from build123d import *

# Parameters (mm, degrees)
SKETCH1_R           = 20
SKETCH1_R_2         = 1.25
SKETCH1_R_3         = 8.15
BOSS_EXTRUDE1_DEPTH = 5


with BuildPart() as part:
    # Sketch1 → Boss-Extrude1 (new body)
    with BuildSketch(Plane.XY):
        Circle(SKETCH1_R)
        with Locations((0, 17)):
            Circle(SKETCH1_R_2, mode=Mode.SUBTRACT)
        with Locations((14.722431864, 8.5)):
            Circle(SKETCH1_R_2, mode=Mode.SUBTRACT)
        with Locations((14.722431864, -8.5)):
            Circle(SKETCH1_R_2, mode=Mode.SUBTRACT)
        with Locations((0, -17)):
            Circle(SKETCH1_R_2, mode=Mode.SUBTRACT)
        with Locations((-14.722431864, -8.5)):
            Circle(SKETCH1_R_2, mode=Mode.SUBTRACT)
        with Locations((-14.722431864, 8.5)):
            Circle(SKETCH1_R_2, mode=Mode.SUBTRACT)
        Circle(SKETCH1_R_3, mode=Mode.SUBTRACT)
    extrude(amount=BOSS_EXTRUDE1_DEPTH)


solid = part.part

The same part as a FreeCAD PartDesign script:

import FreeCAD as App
import Part
import Sketcher
Q = App.Units.Quantity

doc = App.newDocument("Part")
body = doc.addObject("PartDesign::Body", "Body")

sketch1 = body.newObject("Sketcher::SketchObject", "Sketch")
sketch1.AttachmentSupport = (doc.getObject("XY_Plane"), [""])
sketch1.MapMode = "FlatFace"
sketch1.addGeometry(Part.Circle(App.Vector(0, 0, 0), App.Vector(0, 0, 1), 20), False)
sketch1.addGeometry(Part.Circle(App.Vector(0, -17, 0), App.Vector(0, 0, 1), 1.2), False)
sketch1.addGeometry(Part.Circle(App.Vector(-14.7, -8.5, 0), App.Vector(0, 0, 1), 1.2), False)
sketch1.addGeometry(Part.Circle(App.Vector(14.7, -8.5, 0), App.Vector(0, 0, 1), 1.2), False)
sketch1.addGeometry(Part.Circle(App.Vector(-14.7, 8.5, 0), App.Vector(0, 0, 1), 1.2), False)
sketch1.addGeometry(Part.Circle(App.Vector(0, 0, 0), App.Vector(0, 0, 1), 8.2), False)
sketch1.addGeometry(Part.Circle(App.Vector(0, 17, 0), App.Vector(0, 0, 1), 1.2), False)
sketch1.addGeometry(Part.Circle(App.Vector(14.7, 8.5, 0), App.Vector(0, 0, 1), 1.2), False)
sketch1.addConstraint(Sketcher.Constraint("Coincident", 0, 3, -1, 1))
sketch1.addConstraint(Sketcher.Constraint("Coincident", 5, 3, -1, 1))
sketch1.addConstraint(Sketcher.Constraint("Equal", 1, 2))
sketch1.addConstraint(Sketcher.Constraint("Equal", 2, 3))
sketch1.addConstraint(Sketcher.Constraint("Equal", 3, 4))
sketch1.addConstraint(Sketcher.Constraint("Equal", 4, 6))
sketch1.addConstraint(Sketcher.Constraint("Equal", 6, 7))
sketch1.addConstraint(Sketcher.Constraint("Symmetric", 3, 3, 4, 3, -1, 1))
sketch1.addConstraint(Sketcher.Constraint("Symmetric", 1, 3, 6, 3, -1, 1))
sketch1.addConstraint(Sketcher.Constraint("Symmetric", 2, 3, 7, 3, -1, 1))
sketch1.addConstraint(Sketcher.Constraint("Symmetric", 2, 3, 3, 3, -2))
sketch1.addConstraint(Sketcher.Constraint("PointOnObject", 1, 3, -2))
sketch1.addConstraint(Sketcher.Constraint("Diameter", 0, Q("40 mm")))
sketch1.addConstraint(Sketcher.Constraint("Diameter", 1, Q("2.5 mm")))
sketch1.addConstraint(Sketcher.Constraint("Diameter", 5, Q("16.3 mm")))
sketch1.addConstraint(Sketcher.Constraint("DistanceY", 1, 3, -1, 1, Q("17 mm")))
sketch1.addConstraint(Sketcher.Constraint("DistanceY", 2, 3, 4, 3, Q("17 mm")))
sketch1.addConstraint(Sketcher.Constraint("DistanceX", 2, 3, -1, 1, Q("14.722432 mm")))
pad1 = body.newObject("PartDesign::Pad", "Pad")
pad1.Profile = sketch1
pad1.Length = 5

doc.recompute()
